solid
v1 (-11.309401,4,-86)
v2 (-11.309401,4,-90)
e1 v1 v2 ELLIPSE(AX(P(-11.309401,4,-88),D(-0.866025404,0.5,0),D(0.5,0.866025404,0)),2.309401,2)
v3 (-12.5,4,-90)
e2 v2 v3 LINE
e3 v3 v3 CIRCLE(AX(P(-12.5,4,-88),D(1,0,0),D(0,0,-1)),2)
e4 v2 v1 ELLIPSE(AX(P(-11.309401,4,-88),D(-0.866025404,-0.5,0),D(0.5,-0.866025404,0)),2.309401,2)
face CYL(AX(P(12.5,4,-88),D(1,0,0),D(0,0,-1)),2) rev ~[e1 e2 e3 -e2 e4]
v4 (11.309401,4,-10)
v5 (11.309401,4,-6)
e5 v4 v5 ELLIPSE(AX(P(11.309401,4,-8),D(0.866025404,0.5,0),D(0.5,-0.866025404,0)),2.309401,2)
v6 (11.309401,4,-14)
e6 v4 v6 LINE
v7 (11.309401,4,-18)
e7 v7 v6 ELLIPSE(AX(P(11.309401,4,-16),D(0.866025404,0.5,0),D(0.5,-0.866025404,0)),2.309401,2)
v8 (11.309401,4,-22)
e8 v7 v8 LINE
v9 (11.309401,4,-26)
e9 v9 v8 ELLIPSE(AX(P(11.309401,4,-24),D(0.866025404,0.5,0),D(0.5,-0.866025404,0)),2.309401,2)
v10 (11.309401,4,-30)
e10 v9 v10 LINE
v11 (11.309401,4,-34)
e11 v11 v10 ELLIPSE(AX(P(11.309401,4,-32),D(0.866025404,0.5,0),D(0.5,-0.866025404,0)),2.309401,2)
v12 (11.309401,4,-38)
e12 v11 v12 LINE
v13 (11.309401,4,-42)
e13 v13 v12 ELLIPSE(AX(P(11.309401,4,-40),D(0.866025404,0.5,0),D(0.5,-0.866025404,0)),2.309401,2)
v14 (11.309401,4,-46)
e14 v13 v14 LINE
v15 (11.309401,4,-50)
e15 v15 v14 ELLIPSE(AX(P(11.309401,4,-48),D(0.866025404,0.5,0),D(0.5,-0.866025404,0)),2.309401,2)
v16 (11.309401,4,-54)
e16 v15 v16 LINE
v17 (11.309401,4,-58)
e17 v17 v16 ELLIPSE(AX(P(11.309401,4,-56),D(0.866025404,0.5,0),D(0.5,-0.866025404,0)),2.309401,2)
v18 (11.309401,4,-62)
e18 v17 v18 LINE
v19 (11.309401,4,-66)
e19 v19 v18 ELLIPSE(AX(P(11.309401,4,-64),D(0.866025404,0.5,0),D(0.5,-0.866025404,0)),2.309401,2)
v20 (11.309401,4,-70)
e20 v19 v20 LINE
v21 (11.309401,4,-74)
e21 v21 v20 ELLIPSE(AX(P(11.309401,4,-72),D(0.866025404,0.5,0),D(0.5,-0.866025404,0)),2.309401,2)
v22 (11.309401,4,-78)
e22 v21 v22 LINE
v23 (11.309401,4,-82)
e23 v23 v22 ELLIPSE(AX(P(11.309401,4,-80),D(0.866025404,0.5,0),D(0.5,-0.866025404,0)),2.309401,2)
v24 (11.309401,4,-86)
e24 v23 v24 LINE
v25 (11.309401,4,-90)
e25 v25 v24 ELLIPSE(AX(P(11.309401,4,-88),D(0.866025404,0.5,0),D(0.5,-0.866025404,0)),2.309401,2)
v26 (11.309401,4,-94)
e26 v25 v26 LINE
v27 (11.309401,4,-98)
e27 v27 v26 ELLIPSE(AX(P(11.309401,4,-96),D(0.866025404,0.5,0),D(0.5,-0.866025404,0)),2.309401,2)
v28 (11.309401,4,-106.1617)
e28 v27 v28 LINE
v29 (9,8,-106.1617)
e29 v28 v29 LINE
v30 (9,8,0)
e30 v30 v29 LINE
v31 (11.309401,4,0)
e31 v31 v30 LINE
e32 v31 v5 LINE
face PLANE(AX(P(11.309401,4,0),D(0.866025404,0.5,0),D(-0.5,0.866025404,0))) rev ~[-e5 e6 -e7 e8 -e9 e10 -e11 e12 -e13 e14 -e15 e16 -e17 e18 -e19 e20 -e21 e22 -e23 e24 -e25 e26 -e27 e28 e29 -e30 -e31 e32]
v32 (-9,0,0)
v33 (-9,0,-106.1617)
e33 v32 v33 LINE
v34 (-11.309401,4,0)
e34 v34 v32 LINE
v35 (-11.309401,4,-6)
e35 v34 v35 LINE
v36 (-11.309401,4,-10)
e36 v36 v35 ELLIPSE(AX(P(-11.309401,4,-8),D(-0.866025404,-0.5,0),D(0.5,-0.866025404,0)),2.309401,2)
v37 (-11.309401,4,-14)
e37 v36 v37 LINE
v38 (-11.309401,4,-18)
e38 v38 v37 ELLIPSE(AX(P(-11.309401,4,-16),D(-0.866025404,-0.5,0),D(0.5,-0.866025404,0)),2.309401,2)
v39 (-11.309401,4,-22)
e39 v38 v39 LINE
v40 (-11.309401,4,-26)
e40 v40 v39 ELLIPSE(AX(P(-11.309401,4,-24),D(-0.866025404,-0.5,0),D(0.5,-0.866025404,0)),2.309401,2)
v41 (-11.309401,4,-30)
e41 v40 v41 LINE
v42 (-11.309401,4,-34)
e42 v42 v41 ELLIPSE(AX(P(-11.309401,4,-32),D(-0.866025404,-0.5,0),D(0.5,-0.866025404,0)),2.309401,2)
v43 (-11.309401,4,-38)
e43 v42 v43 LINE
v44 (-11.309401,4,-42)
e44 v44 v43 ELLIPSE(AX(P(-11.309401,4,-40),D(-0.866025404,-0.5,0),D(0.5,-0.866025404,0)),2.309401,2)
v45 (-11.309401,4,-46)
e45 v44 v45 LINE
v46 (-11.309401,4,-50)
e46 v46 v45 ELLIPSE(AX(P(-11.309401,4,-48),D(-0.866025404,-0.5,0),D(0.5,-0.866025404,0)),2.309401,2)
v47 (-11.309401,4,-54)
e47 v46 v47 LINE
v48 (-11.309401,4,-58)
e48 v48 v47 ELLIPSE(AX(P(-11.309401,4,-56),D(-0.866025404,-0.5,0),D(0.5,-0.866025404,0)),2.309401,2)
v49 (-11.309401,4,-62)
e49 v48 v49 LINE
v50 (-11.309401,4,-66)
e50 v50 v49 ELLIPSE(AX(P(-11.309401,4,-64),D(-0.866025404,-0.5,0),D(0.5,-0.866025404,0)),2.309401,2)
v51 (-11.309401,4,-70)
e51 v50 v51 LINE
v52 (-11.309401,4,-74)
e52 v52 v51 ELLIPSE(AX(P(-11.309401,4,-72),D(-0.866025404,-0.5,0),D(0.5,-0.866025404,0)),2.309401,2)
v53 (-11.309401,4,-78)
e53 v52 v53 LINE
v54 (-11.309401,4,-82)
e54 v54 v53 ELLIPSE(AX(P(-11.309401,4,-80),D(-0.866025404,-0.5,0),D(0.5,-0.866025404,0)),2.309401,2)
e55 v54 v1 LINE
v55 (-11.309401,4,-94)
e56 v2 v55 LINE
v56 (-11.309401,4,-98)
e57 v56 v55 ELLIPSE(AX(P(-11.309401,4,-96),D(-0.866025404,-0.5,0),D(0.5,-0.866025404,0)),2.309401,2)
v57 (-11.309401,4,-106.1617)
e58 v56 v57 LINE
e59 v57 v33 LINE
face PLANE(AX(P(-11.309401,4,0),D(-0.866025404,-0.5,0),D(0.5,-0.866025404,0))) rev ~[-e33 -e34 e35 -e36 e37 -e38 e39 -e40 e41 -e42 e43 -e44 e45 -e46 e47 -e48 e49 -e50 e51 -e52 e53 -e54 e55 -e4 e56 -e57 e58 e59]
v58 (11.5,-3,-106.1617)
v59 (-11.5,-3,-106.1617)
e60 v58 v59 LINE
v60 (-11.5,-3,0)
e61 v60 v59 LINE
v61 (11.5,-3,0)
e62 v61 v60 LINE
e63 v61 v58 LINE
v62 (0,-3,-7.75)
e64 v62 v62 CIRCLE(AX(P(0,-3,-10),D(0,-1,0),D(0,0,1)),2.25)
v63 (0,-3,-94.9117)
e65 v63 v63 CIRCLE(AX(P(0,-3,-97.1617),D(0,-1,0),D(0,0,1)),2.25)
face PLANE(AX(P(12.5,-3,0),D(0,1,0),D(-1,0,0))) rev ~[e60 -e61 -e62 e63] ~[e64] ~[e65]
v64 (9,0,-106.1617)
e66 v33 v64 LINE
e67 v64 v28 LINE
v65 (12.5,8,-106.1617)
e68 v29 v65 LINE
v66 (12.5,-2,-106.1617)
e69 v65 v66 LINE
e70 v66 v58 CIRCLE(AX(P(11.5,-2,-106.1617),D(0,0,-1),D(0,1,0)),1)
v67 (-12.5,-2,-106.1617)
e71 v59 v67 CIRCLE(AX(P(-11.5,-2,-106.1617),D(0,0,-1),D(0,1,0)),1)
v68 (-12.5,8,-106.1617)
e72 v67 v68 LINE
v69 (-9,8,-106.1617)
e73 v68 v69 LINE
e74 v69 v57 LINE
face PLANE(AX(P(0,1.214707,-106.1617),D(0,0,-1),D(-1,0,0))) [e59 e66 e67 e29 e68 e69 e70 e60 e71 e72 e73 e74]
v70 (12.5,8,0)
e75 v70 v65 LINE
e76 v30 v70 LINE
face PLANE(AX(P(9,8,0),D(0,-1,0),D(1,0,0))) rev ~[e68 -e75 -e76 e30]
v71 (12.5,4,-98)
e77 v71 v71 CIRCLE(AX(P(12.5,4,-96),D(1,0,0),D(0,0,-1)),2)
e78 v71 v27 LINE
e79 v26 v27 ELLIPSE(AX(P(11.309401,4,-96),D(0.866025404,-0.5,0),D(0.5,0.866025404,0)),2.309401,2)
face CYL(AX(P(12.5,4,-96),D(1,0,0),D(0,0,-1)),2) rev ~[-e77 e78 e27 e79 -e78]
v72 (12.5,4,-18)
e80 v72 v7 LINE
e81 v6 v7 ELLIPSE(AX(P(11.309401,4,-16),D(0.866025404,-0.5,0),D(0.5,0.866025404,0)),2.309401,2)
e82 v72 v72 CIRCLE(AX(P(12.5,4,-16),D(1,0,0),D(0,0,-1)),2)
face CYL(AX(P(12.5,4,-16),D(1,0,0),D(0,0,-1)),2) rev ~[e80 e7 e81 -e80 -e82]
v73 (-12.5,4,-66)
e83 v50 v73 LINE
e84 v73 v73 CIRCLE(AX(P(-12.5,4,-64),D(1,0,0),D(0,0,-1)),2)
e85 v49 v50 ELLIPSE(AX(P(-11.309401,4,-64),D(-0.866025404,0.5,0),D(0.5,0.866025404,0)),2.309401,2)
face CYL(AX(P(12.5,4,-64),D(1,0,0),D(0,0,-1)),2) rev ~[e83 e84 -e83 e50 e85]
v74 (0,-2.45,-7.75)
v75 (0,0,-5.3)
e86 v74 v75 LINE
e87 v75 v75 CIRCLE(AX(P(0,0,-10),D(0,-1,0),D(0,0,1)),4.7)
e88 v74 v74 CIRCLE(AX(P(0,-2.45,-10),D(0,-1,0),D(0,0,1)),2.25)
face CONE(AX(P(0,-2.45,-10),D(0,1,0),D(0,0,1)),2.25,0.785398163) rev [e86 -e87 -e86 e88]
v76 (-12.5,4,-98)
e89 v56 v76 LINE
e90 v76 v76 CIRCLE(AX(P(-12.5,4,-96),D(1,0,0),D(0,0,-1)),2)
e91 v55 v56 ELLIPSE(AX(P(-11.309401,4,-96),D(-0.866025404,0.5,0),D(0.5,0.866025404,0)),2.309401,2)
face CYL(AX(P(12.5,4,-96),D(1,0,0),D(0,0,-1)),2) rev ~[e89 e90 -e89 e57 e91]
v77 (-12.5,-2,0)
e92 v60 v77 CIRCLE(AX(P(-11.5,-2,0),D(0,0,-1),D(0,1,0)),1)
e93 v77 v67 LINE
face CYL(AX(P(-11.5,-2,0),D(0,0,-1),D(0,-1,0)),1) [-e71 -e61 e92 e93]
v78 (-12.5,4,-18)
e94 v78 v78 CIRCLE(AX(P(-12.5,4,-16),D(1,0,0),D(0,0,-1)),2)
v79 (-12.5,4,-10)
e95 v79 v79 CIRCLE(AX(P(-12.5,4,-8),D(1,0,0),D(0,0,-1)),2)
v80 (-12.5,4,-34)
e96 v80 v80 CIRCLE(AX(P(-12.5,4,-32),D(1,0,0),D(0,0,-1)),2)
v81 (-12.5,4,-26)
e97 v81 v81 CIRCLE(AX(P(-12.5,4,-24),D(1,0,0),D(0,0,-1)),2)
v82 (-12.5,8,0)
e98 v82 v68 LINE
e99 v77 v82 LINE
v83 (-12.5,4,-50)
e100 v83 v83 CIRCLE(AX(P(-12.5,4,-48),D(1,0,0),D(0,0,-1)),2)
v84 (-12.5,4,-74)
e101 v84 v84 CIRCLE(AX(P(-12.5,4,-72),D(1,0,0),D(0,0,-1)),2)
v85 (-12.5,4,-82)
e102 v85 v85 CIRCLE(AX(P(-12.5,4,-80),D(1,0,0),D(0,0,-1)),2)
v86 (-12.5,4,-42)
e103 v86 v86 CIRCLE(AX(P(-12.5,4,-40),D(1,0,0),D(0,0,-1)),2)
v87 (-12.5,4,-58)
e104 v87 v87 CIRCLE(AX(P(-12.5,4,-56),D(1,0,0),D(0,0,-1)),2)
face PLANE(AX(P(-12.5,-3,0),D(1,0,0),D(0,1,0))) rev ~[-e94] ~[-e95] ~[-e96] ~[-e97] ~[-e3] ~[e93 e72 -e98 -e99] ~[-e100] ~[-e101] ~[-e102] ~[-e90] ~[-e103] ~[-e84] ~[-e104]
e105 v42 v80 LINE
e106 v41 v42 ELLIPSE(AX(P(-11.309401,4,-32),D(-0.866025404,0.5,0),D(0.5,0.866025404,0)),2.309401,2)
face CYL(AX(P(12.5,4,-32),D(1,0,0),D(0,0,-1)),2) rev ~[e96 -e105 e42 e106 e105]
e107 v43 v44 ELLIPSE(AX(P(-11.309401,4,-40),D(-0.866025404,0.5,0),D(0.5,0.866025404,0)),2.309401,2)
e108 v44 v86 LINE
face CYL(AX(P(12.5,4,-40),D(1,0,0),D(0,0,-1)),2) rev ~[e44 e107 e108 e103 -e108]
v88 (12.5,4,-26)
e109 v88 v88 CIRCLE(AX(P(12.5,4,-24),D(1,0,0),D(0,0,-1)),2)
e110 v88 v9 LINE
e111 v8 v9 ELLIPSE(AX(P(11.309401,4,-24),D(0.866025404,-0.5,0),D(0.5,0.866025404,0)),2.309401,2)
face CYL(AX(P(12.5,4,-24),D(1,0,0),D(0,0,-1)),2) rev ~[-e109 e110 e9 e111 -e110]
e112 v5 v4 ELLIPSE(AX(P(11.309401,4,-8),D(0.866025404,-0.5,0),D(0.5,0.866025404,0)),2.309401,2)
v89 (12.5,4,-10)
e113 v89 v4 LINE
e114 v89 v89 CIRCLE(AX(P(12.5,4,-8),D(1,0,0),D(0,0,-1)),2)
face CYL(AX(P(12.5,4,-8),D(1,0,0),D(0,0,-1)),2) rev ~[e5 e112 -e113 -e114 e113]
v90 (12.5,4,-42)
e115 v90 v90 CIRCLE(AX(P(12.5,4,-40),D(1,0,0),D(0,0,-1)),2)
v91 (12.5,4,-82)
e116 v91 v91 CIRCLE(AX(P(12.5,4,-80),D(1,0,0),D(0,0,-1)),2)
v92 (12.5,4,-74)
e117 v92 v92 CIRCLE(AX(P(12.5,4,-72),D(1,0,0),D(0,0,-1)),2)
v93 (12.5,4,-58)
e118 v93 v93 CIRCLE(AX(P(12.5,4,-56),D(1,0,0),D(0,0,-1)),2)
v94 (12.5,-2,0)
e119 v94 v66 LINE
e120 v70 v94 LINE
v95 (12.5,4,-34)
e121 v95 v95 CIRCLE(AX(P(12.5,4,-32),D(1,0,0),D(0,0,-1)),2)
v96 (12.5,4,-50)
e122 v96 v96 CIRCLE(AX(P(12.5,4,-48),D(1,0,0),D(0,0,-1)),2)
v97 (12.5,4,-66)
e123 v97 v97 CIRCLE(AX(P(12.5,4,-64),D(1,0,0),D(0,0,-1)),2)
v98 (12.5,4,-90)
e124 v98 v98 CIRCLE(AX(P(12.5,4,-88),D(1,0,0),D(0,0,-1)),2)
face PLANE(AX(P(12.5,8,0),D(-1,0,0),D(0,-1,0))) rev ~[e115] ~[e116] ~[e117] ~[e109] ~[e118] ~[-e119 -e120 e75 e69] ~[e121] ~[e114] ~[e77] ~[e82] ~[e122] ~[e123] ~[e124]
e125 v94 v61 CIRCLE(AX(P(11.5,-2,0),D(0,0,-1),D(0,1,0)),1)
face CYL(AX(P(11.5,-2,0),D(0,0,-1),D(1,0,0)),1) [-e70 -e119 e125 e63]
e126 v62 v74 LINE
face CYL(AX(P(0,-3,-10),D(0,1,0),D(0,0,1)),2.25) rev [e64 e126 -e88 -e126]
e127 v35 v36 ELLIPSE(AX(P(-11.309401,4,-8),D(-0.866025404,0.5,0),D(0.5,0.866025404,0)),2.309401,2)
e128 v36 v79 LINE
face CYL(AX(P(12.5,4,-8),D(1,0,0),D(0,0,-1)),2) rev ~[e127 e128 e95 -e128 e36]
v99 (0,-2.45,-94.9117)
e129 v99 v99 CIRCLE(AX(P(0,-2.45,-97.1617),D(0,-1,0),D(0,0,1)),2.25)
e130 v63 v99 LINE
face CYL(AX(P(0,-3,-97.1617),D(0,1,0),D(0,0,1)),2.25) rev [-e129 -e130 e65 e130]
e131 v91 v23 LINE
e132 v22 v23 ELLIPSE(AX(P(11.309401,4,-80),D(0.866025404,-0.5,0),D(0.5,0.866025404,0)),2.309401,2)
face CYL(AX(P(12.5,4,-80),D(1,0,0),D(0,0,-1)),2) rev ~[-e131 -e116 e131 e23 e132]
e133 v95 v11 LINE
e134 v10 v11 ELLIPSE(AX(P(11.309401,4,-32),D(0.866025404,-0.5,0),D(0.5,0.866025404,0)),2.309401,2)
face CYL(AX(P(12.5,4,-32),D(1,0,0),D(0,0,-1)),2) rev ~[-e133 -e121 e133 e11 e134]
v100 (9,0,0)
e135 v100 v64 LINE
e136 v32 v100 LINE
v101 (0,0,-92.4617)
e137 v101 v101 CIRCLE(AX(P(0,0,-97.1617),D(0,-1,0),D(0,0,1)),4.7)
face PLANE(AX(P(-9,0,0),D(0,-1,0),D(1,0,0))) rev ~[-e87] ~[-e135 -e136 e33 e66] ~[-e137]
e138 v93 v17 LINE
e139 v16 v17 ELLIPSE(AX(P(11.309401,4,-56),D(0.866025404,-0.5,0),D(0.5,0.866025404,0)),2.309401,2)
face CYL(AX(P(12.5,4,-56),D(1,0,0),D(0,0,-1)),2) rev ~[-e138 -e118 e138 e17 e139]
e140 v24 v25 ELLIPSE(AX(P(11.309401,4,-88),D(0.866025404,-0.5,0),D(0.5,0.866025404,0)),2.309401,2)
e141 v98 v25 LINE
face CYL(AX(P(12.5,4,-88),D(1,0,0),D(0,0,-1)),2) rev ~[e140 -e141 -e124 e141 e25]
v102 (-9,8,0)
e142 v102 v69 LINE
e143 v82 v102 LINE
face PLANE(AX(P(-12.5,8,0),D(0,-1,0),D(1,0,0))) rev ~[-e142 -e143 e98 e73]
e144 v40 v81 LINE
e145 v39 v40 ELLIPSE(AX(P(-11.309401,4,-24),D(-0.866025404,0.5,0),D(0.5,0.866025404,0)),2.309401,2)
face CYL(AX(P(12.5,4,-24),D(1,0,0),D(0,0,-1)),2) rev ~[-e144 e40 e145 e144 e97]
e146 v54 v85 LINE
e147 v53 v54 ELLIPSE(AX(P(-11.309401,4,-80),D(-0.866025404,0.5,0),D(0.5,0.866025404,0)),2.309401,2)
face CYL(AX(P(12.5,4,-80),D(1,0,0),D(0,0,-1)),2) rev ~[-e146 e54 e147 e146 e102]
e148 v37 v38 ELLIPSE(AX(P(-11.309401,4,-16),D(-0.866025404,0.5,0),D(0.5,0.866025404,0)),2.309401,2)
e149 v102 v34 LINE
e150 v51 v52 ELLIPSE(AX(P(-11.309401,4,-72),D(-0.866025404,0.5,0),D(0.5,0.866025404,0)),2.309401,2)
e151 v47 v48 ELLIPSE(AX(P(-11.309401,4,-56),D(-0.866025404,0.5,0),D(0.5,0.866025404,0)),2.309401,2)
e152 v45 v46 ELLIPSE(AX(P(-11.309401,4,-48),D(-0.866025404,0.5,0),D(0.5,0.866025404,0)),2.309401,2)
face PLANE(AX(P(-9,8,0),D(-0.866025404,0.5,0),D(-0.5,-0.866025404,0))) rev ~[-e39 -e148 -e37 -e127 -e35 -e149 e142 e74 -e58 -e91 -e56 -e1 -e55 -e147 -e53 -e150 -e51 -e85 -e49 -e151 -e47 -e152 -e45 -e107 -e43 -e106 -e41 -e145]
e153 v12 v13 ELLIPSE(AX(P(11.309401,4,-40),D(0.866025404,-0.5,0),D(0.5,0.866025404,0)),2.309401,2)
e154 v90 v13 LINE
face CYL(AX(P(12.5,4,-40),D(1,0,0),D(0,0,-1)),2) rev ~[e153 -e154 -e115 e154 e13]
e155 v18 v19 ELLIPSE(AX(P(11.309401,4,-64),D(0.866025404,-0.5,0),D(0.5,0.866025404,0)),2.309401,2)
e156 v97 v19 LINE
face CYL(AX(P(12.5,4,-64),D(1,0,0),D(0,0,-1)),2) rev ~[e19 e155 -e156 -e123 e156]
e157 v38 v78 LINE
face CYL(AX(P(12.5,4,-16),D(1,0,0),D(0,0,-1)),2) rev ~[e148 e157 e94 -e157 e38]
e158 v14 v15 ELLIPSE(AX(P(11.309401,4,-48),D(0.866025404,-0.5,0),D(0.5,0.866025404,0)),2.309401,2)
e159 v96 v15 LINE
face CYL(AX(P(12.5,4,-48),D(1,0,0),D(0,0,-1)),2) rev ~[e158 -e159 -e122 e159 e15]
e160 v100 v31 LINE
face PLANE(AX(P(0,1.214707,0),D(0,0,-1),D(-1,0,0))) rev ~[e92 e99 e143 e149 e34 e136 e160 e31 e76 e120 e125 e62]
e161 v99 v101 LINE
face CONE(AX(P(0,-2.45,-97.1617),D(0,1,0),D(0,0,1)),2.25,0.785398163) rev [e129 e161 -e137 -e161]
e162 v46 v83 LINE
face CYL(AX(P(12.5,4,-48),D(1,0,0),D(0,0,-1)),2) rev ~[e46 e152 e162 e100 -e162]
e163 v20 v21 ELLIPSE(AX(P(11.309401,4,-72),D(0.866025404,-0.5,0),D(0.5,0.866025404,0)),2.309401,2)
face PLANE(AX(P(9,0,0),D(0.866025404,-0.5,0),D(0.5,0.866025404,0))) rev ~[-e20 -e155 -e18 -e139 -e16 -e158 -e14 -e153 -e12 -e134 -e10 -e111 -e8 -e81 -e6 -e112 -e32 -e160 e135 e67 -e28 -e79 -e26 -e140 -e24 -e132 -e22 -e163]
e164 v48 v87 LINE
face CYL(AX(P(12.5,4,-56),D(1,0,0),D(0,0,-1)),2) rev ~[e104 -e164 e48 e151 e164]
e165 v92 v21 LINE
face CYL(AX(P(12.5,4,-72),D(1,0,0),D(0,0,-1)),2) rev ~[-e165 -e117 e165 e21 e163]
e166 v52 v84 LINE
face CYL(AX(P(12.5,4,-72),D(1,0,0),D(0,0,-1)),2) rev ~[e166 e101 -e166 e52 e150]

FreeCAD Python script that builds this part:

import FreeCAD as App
import Part
import Sketcher
Q = App.Units.Quantity


def edges_at(feature, points):
    """Names of the edges that pass closest to the given points."""
    edges = feature.Shape.Edges
    near = lambda p: min(range(len(edges)), key=lambda i: edges[i].distToShape(Part.Vertex(*p))[0])
    return sorted({f"Edge{near(p) + 1}" for p in points})


def add_polygon(sketch, points):
    """Adds a closed chain of lines whose ends are joined by coincident constraints."""
    first, n = sketch.GeometryCount, len(points)
    for a, b in zip(points, points[1:] + points[:1]):
        sketch.addGeometry(Part.LineSegment(App.Vector(*a, 0), App.Vector(*b, 0)), False)
    for i in range(n):
        sketch.addConstraint(Sketcher.Constraint("Coincident", first + i, 2, first + (i + 1) % n, 1))

doc = App.newDocument("Part")
body = doc.addObject("PartDesign::Body", "Body")

sketch1 = body.newObject("Sketcher::SketchObject", "Sketch")
sketch1.AttachmentSupport = (doc.getObject("XY_Plane"), [""])
sketch1.MapMode = "FlatFace"
add_polygon(sketch1, [(9, 0), (-9, 0), (-11.309401, 4), (-9, 8), (-12.5, 8), (-12.5, -3), (12.5, -3), (12.5, 8), (9, 8), (11.309401, 4)])
sketch1.addConstraint([
    Sketcher.Constraint("Horizontal", 0),
    Sketcher.Constraint("Horizontal", 3),
    Sketcher.Constraint("Vertical", 4),
    Sketcher.Constraint("Horizontal", 5),
    Sketcher.Constraint("Vertical", 6),
    Sketcher.Constraint("Horizontal", 7),
    Sketcher.Constraint("Symmetric", 0, 2, 9, 2, -1, 1),
    Sketcher.Constraint("Symmetric", 3, 2, 6, 2, -2),
    Sketcher.Constraint("Symmetric", 1, 2, 8, 2, -2),
    Sketcher.Constraint("Parallel", 1, 8),
    Sketcher.Constraint("Parallel", 2, 9),
    Sketcher.Constraint("Vertical", 0, 2, 2, 2),
    Sketcher.Constraint("DistanceX", 0, 2, 0, 1, Q("18 mm")),
    Sketcher.Constraint("DistanceX", 5, 1, 5, 2, Q("25 mm")),
    Sketcher.Constraint("DistanceY", 4, 2, 4, 1, Q("11 mm")),
    Sketcher.Constraint("Angle", 1, Q("120 deg")),
    Sketcher.Constraint("DistanceY", -1, 1, 1, 2, Q("4 mm")),
])
pad1 = body.newObject("PartDesign::Pad", "Pad")
pad1.Profile = sketch1
pad1.Length = 106.1617
pad1.Reversed = True

sketch2 = body.newObject("Sketcher::SketchObject", "Sketch001")
sketch2.AttachmentSupport = (doc.getObject("YZ_Plane"), [""])
sketch2.MapMode = "FlatFace"
sketch2.AttachmentOffset = App.Placement(App.Vector(0, 0, 12.5), App.Rotation())
sketch2.addGeometry(Part.Circle(App.Vector(4, -8, 0), App.Vector(0, 0, 1), 2), False)
sketch2.addConstraint([
    Sketcher.Constraint("Diameter", 0, Q("4 mm")),
    Sketcher.Constraint("DistanceX", -1, 1, 0, 3, Q("4 mm")),
    Sketcher.Constraint("DistanceY", 0, 3, -1, 1, Q("8 mm")),
])
pocket1 = body.newObject("PartDesign::Pocket", "Pocket")
pocket1.Profile = sketch2
pocket1.Length = 100
doc.recompute()

linearpattern = body.newObject("PartDesign::LinearPattern", "LinearPattern")
linearpattern.Originals = [pocket1]
linearpattern.Direction = (doc.getObject("Z_Axis"), [""])
linearpattern.Mode = "offset"
linearpattern.Offset = 8
linearpattern.Occurrences = 12
linearpattern.Reversed = True
body.Tip = linearpattern
doc.recompute()

fillet = body.newObject("PartDesign::Fillet", "Fillet")
fillet.Base = (linearpattern, edges_at(linearpattern, [(12.5, -3, -53.081), (-12.5, -3, -53.081)]))
fillet.Radius = 1

sketch3 = body.newObject("Sketcher::SketchObject", "Sketch002")
sketch3.AttachmentSupport = (doc.getObject("YZ_Plane"), [""])
sketch3.MapMode = "FlatFace"
add_polygon(sketch3, [(-3, -97.1617), (0, -97.1617), (0, -92.4617), (-2.45, -94.9117), (-3, -94.9117)])
sketch3.addGeometry(Part.LineSegment(App.Vector(0, -97.1617, 0), App.Vector(-3, -97.1617, 0)), True)
sketch3.addConstraint([
    Sketcher.Constraint("Horizontal", 0),
    Sketcher.Constraint("Vertical", 1),
    Sketcher.Constraint("Horizontal", 3),
    Sketcher.Constraint("Vertical", 4),
    Sketcher.Constraint("Horizontal", 5),
    Sketcher.Constraint("Coincident", 5, 1, 0, 2),
    Sketcher.Constraint("PointOnObject", 0, 2, -2),
    Sketcher.Constraint("Vertical", 3, 2, 5, 2),
    Sketcher.Constraint("DistanceX", 0, 1, 0, 2, Q("3 mm")),
    Sketcher.Constraint("Angle", 2, Q("-135 deg")),
    Sketcher.Constraint("DistanceY", 1, 1, 1, 2, Q("4.7 mm")),
    Sketcher.Constraint("DistanceX", 3, 2, 3, 1, Q("0.55 mm")),
    Sketcher.Constraint("DistanceY", 0, 2, -1, 1, Q("97.1617 mm")),
])
groove = body.newObject("PartDesign::Groove", "Groove")
groove.Profile = sketch3
groove.ReferenceAxis = (sketch3, ["Axis0"])
groove.Angle = 360
doc.recompute()

linearpattern2 = body.newObject("PartDesign::LinearPattern", "LinearPattern001")
linearpattern2.Originals = [groove]
linearpattern2.Direction = (doc.getObject("Z_Axis"), [""])
linearpattern2.Mode = "offset"
linearpattern2.Offset = 87.1617
linearpattern2.Occurrences = 2
body.Tip = linearpattern2

doc.recompute()
